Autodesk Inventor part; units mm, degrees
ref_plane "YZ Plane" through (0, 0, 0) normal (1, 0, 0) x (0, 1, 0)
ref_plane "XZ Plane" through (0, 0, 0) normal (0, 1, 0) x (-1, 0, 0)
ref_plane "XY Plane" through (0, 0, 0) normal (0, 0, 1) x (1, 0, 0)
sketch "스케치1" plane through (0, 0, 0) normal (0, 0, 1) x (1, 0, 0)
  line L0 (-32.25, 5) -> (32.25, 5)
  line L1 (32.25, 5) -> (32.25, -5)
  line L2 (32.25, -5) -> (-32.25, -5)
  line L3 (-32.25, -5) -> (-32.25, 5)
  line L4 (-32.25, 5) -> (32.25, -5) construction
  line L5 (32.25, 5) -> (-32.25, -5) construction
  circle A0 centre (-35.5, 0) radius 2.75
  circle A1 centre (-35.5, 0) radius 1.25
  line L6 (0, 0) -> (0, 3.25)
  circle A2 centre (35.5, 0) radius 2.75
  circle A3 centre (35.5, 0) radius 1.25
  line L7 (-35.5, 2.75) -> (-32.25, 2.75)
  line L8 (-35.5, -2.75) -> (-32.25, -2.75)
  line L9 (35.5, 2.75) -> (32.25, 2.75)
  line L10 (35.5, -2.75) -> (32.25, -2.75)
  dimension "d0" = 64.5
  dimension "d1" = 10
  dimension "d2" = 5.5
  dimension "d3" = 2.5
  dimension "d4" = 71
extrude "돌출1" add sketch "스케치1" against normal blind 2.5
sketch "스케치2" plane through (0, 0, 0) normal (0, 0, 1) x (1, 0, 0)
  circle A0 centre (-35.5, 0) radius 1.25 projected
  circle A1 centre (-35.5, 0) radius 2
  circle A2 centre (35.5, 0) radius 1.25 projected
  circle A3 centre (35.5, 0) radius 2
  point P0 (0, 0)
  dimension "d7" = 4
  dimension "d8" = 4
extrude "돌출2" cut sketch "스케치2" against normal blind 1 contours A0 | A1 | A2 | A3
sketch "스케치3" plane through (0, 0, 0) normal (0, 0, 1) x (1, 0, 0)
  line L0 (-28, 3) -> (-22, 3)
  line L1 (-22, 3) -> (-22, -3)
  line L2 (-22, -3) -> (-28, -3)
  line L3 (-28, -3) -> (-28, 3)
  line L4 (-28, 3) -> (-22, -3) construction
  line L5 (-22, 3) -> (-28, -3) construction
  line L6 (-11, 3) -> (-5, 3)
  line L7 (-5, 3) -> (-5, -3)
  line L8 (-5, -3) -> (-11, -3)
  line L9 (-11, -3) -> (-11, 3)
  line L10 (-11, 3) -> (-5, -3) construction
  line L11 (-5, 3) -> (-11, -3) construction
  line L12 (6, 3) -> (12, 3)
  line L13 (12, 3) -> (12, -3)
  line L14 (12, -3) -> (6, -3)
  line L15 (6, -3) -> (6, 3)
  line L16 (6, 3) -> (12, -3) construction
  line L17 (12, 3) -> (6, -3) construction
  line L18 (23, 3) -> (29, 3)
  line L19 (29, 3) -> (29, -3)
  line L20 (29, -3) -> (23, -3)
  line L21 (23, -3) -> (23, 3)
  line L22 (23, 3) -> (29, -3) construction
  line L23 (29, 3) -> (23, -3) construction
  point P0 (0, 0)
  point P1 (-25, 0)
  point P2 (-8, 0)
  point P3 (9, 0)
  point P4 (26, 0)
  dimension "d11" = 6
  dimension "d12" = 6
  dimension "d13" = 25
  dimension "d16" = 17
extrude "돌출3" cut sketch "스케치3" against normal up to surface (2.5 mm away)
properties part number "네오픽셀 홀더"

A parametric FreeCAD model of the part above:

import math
import FreeCAD as App
import Part
import Sketcher

V = App.Vector


def add_polygon(sketch, points):
    """Adds a closed chain of lines whose ends are joined by coincident constraints."""
    first, n = sketch.GeometryCount, len(points)
    for a, b in zip(points, points[1:] + points[:1]):
        sketch.addGeometry(Part.LineSegment(App.Vector(*a, 0), App.Vector(*b, 0)), False)
    for i in range(n):
        sketch.addConstraint(Sketcher.Constraint("Coincident", first + i, 2, first + (i + 1) % n, 1))

doc = App.newDocument("Part")
body = doc.addObject("PartDesign::Body", "Body")

# Sketch on XY plane
sketch1 = body.newObject("Sketcher::SketchObject", "Sketch")
sketch1.AttachmentSupport = (doc.getObject("XY_Plane"), [""])
sketch1.MapMode = "FlatFace"
sketch1.addGeometry(Part.LineSegment(V(32.25, 5, 0), V(-32.25, 5, 0)), False)
sketch1.addGeometry(Part.LineSegment(V(-32.25, 5, 0), V(-32.25, 2.75, 0)), False)
sketch1.addGeometry(Part.LineSegment(V(-32.25, 2.75, 0), V(-35.5, 2.75, 0)), False)
sketch1.addGeometry(Part.ArcOfCircle(Part.Circle(V(-35.5, 0, 0), V(0, 0, 1), 2.75), math.radians(90), math.radians(270)), False)
sketch1.addGeometry(Part.LineSegment(V(-35.5, -2.75, 0), V(-32.25, -2.75, 0)), False)
sketch1.addGeometry(Part.LineSegment(V(-32.25, -2.75, 0), V(-32.25, -5, 0)), False)
sketch1.addGeometry(Part.LineSegment(V(-32.25, -5, 0), V(32.25, -5, 0)), False)
sketch1.addGeometry(Part.LineSegment(V(32.25, -5, 0), V(32.25, -2.75, 0)), False)
sketch1.addGeometry(Part.LineSegment(V(32.25, -2.75, 0), V(35.5, -2.75, 0)), False)
sketch1.addGeometry(Part.ArcOfCircle(Part.Circle(V(35.5, 0, 0), V(0, 0, 1), 2.75), math.radians(-90), math.radians(90)), False)
sketch1.addGeometry(Part.LineSegment(V(35.5, 2.75, 0), V(32.25, 2.75, 0)), False)
sketch1.addGeometry(Part.LineSegment(V(32.25, 2.75, 0), V(32.25, 5, 0)), False)
sketch1.addGeometry(Part.Circle(V(35.5, 0, 0), V(0, 0, 1), 1.25), False)
sketch1.addGeometry(Part.Circle(V(-35.5, 0, 0), V(0, 0, 1), 1.25), False)
sketch1.addConstraint(Sketcher.Constraint("Coincident", 0, 2, 1, 1))
sketch1.addConstraint(Sketcher.Constraint("Coincident", 1, 2, 2, 1))
sketch1.addConstraint(Sketcher.Constraint("Tangent", 2, 2, 3, 1))
sketch1.addConstraint(Sketcher.Constraint("Tangent", 3, 2, 4, 1))
sketch1.addConstraint(Sketcher.Constraint("Coincident", 4, 2, 5, 1))
sketch1.addConstraint(Sketcher.Constraint("Coincident", 5, 2, 6, 1))
sketch1.addConstraint(Sketcher.Constraint("Coincident", 6, 2, 7, 1))
sketch1.addConstraint(Sketcher.Constraint("Coincident", 7, 2, 8, 1))
sketch1.addConstraint(Sketcher.Constraint("Tangent", 8, 2, 9, 1))
sketch1.addConstraint(Sketcher.Constraint("Tangent", 9, 2, 10, 1))
sketch1.addConstraint(Sketcher.Constraint("Coincident", 10, 2, 11, 1))
sketch1.addConstraint(Sketcher.Constraint("Coincident", 11, 2, 0, 1))
sketch1.addConstraint(Sketcher.Constraint("Horizontal", 0))
sketch1.addConstraint(Sketcher.Constraint("Vertical", 1))
sketch1.addConstraint(Sketcher.Constraint("Horizontal", 2))
sketch1.addConstraint(Sketcher.Constraint("Horizontal", 4))
sketch1.addConstraint(Sketcher.Constraint("Vertical", 5))
sketch1.addConstraint(Sketcher.Constraint("Horizontal", 6))
sketch1.addConstraint(Sketcher.Constraint("Vertical", 7))
sketch1.addConstraint(Sketcher.Constraint("Horizontal", 8))
sketch1.addConstraint(Sketcher.Constraint("Horizontal", 10))
sketch1.addConstraint(Sketcher.Constraint("Vertical", 11))
sketch1.addConstraint(Sketcher.Constraint("Coincident", 12, 3, 9, 3))
sketch1.addConstraint(Sketcher.Constraint("Coincident", 13, 3, 3, 3))
sketch1.addConstraint(Sketcher.Constraint("Equal", 3, 9))
sketch1.addConstraint(Sketcher.Constraint("Equal", 12, 13))
sketch1.addConstraint(Sketcher.Constraint("Symmetric", 3, 3, 9, 3, -1, 1))
sketch1.addConstraint(Sketcher.Constraint("Symmetric", 0, 2, 6, 2, -1, 1))
sketch1.addConstraint(Sketcher.Constraint("Symmetric", 4, 2, 7, 2, -2))
sketch1.addConstraint(Sketcher.Constraint("Vertical", 7, 2, 10, 2))
sketch1.addConstraint(Sketcher.Constraint("Diameter", 12, 2.5))
sketch1.addConstraint(Sketcher.Constraint("Radius", 3, 2.75))
sketch1.addConstraint(Sketcher.Constraint("DistanceX", 0, 2, 0, 1, 64.5))
sketch1.addConstraint(Sketcher.Constraint("DistanceX", 3, 3, 9, 3, 71.0))
sketch1.addConstraint(Sketcher.Constraint("DistanceY", -1, 1, 0, 2, 5.0))
pad1 = body.newObject("PartDesign::Pad", "Pad")
pad1.Profile = sketch1
pad1.Length = 2.5
pad1.Reversed = True

# Sketch on XY plane
sketch2 = body.newObject("Sketcher::SketchObject", "Sketch001")
sketch2.AttachmentSupport = (doc.getObject("XY_Plane"), [""])
sketch2.MapMode = "FlatFace"
sketch2.addGeometry(Part.Circle(V(-35.5, 0, 0), V(0, 0, 1), 2), False)
sketch2.addGeometry(Part.Circle(V(35.5, 0, 0), V(0, 0, 1), 2), False)
sketch2.addConstraint(Sketcher.Constraint("Equal", 0, 1))
sketch2.addConstraint(Sketcher.Constraint("Symmetric", 0, 3, 1, 3, -1, 1))
sketch2.addConstraint(Sketcher.Constraint("PointOnObject", 0, 3, -1))
sketch2.addConstraint(Sketcher.Constraint("Diameter", 0, 4.0))
sketch2.addConstraint(Sketcher.Constraint("DistanceX", 0, 3, 1, 3, 71.0))
pocket1 = body.newObject("PartDesign::Pocket", "Pocket")
pocket1.Profile = sketch2
pocket1.Length = 1

# Sketch on XY plane
sketch3 = body.newObject("Sketcher::SketchObject", "Sketch002")
sketch3.AttachmentSupport = (doc.getObject("XY_Plane"), [""])
sketch3.MapMode = "FlatFace"
add_polygon(sketch3, [(-22, 3), (-28, 3), (-28, -3), (-22, -3)])  # lines 0-3
add_polygon(sketch3, [(-5, 3), (-11, 3), (-11, -3), (-5, -3)])  # lines 4-7
add_polygon(sketch3, [(12, 3), (6, 3), (6, -3), (12, -3)])  # lines 8-11
add_polygon(sketch3, [(29, 3), (23, 3), (23, -3), (29, -3)])  # lines 12-15
sketch3.addConstraint(Sketcher.Constraint("Horizontal", 0))
sketch3.addConstraint(Sketcher.Constraint("Vertical", 1))
sketch3.addConstraint(Sketcher.Constraint("Horizontal", 2))
sketch3.addConstraint(Sketcher.Constraint("Vertical", 3))
sketch3.addConstraint(Sketcher.Constraint("Horizontal", 4))
sketch3.addConstraint(Sketcher.Constraint("Vertical", 5))
sketch3.addConstraint(Sketcher.Constraint("Horizontal", 6))
sketch3.addConstraint(Sketcher.Constraint("Vertical", 7))
sketch3.addConstraint(Sketcher.Constraint("Horizontal", 8))
sketch3.addConstraint(Sketcher.Constraint("Vertical", 9))
sketch3.addConstraint(Sketcher.Constraint("Horizontal", 10))
sketch3.addConstraint(Sketcher.Constraint("Vertical", 11))
sketch3.addConstraint(Sketcher.Constraint("Horizontal", 12))
sketch3.addConstraint(Sketcher.Constraint("Vertical", 13))
sketch3.addConstraint(Sketcher.Constraint("Horizontal", 14))
sketch3.addConstraint(Sketcher.Constraint("Vertical", 15))
sketch3.addConstraint(Sketcher.Constraint("Horizontal", 3, 2, 4, 2))
sketch3.addConstraint(Sketcher.Constraint("Horizontal", 2, 2, 5, 2))
sketch3.addConstraint(Sketcher.Constraint("Horizontal", 7, 2, 8, 2))
sketch3.addConstraint(Sketcher.Constraint("Horizontal", 6, 2, 9, 2))
sketch3.addConstraint(Sketcher.Constraint("Horizontal", 11, 2, 12, 2))
sketch3.addConstraint(Sketcher.Constraint("Horizontal", 10, 2, 13, 2))
sketch3.addConstraint(Sketcher.Constraint("Equal", 2, 4))
sketch3.addConstraint(Sketcher.Constraint("Equal", 6, 8))
sketch3.addConstraint(Sketcher.Constraint("Equal", 10, 12))
sketch3.addConstraint(Sketcher.Constraint("Equal", 14, 1))
sketch3.addConstraint(Sketcher.Constraint("DistanceX", 0, 2, 0, 1, 6.0))
sketch3.addConstraint(Sketcher.Constraint("DistanceX", -1, 1, 8, 2, 6.0))
sketch3.addConstraint(Sketcher.Constraint("DistanceX", 0, 2, 4, 2, 17.0))
sketch3.addConstraint(Sketcher.Constraint("DistanceX", 4, 2, 8, 2, 17.0))
sketch3.addConstraint(Sketcher.Constraint("DistanceX", 8, 2, 12, 2, 17.0))
sketch3.addConstraint(Sketcher.Constraint("DistanceY", -1, 1, 0, 2, 3.0))
pocket2 = body.newObject("PartDesign::Pocket", "Pocket001")
pocket2.Profile = sketch3
pocket2.Length = 2.5

doc.recompute()
